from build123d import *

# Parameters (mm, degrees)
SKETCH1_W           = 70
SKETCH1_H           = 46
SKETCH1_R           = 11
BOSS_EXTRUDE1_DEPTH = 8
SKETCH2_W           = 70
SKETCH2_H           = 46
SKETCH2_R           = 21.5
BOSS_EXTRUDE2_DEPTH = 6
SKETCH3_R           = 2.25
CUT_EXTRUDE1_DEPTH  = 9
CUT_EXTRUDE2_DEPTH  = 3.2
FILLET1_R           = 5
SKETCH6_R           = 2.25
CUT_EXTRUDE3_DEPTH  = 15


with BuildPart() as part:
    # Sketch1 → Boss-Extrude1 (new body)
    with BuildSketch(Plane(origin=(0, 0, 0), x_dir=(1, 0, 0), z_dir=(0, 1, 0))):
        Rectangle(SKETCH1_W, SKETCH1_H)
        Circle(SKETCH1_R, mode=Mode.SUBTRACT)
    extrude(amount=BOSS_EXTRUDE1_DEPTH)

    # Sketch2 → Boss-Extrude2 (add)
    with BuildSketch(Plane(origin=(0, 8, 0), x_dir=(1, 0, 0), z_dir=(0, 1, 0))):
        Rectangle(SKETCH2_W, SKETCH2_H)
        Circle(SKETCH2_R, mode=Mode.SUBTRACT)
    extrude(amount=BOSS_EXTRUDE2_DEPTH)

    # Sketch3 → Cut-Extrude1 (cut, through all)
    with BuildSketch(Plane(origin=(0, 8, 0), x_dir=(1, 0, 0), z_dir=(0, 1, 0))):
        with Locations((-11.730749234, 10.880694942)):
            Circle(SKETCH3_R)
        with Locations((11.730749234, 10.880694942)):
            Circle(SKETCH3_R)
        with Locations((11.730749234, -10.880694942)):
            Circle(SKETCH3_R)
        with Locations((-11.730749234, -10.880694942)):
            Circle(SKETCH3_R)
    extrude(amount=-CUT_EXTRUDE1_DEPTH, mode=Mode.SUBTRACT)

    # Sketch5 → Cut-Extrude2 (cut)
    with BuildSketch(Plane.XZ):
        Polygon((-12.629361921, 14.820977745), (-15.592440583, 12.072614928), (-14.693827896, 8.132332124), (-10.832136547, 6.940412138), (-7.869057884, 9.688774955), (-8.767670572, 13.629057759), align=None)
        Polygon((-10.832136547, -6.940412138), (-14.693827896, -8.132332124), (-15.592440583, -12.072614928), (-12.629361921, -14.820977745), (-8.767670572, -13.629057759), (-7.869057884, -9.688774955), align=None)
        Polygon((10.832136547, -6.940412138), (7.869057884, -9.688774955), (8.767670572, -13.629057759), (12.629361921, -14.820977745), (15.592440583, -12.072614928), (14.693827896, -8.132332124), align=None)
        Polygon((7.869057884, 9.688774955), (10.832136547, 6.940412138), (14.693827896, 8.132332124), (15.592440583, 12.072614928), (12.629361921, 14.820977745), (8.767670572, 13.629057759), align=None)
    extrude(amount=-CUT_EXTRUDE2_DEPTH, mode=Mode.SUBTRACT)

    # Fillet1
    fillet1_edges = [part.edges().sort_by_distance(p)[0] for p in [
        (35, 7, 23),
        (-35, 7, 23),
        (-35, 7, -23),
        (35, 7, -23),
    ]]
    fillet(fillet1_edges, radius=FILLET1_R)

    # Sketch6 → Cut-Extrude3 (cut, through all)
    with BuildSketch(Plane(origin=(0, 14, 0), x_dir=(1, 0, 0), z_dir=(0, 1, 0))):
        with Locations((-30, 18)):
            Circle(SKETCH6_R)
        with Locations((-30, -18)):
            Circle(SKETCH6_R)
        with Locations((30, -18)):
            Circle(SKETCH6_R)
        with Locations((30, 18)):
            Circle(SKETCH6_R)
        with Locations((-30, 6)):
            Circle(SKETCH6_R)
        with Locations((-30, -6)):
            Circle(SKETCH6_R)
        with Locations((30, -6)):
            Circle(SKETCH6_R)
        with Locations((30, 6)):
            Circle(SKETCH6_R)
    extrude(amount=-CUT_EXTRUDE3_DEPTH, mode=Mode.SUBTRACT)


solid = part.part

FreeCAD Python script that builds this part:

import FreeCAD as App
import Part
import Sketcher

V = App.Vector
Q = App.Units.Quantity


def edges_at(feature, points):
    """Names of the edges that pass closest to the given points."""
    edges = feature.Shape.Edges
    near = lambda p: min(range(len(edges)), key=lambda i: edges[i].distToShape(Part.Vertex(*p))[0])
    return sorted({f"Edge{near(p) + 1}" for p in points})

doc = App.newDocument("Part")
body = doc.addObject("PartDesign::Body", "Body")

sketch1 = doc.addObject("Sketcher::SketchObject", "Sketch")
body.addObject(sketch1)
sketch1.AttachmentSupport = (doc.XZ_Plane, [""])
sketch1.MapMode = "FlatFace"
sketch1.addGeometry(Part.LineSegment(V(-35, -23, 0), V(-35, 23, 0)), False)
sketch1.addGeometry(Part.LineSegment(V(-35, 23, 0), V(35, 23, 0)), False)
sketch1.addGeometry(Part.LineSegment(V(35, 23, 0), V(35, -23, 0)), False)
sketch1.addGeometry(Part.LineSegment(V(35, -23, 0), V(-35, -23, 0)), False)
sketch1.addGeometry(Part.Circle(V(0, 0, 0), V(0, 0, 1), 11), False)
sketch1.addConstraint(Sketcher.Constraint("Coincident", 0, 2, 1, 1))
sketch1.addConstraint(Sketcher.Constraint("Coincident", 1, 2, 2, 1))
sketch1.addConstraint(Sketcher.Constraint("Coincident", 2, 2, 3, 1))
sketch1.addConstraint(Sketcher.Constraint("Coincident", 3, 2, 0, 1))
sketch1.addConstraint(Sketcher.Constraint("Vertical", 0))
sketch1.addConstraint(Sketcher.Constraint("Horizontal", 1))
sketch1.addConstraint(Sketcher.Constraint("Vertical", 2))
sketch1.addConstraint(Sketcher.Constraint("Horizontal", 3))
sketch1.addConstraint(Sketcher.Constraint("Coincident", 4, 3, -1, 1))
sketch1.addConstraint(Sketcher.Constraint("Symmetric", 0, 2, 2, 2, -1, 1))
sketch1.addConstraint(Sketcher.Constraint("Diameter", 4, Q("22 mm")))
sketch1.addConstraint(Sketcher.Constraint("DistanceX", 1, 1, 1, 2, Q("70 mm")))
sketch1.addConstraint(Sketcher.Constraint("DistanceY", 0, 1, 0, 2, Q("46 mm")))
pad1 = doc.addObject("PartDesign::Pad", "Pad")
body.addObject(pad1)
pad1.Profile = sketch1
pad1.Length = 8
pad1.Reversed = True

sketch2 = doc.addObject("Sketcher::SketchObject", "Sketch001")
body.addObject(sketch2)
sketch2.AttachmentSupport = (doc.XZ_Plane, [""])
sketch2.MapMode = "FlatFace"
sketch2.AttachmentOffset = App.Placement(V(0, 0, -8), App.Rotation())
sketch2.addGeometry(Part.LineSegment(V(-35, -23, 0), V(-35, 23, 0)), False)
sketch2.addGeometry(Part.LineSegment(V(-35, 23, 0), V(35, 23, 0)), False)
sketch2.addGeometry(Part.LineSegment(V(35, 23, 0), V(35, -23, 0)), False)
sketch2.addGeometry(Part.LineSegment(V(35, -23, 0), V(-35, -23, 0)), False)
sketch2.addGeometry(Part.Circle(V(0, 0, 0), V(0, 0, 1), 21.5), False)
sketch2.addConstraint(Sketcher.Constraint("Coincident", 0, 2, 1, 1))
sketch2.addConstraint(Sketcher.Constraint("Coincident", 1, 2, 2, 1))
sketch2.addConstraint(Sketcher.Constraint("Coincident", 2, 2, 3, 1))
sketch2.addConstraint(Sketcher.Constraint("Coincident", 3, 2, 0, 1))
sketch2.addConstraint(Sketcher.Constraint("Vertical", 0))
sketch2.addConstraint(Sketcher.Constraint("Horizontal", 1))
sketch2.addConstraint(Sketcher.Constraint("Vertical", 2))
sketch2.addConstraint(Sketcher.Constraint("Horizontal", 3))
sketch2.addConstraint(Sketcher.Constraint("Coincident", 4, 3, -1, 1))
sketch2.addConstraint(Sketcher.Constraint("Symmetric", 0, 2, 2, 2, -1, 1))
sketch2.addConstraint(Sketcher.Constraint("Diameter", 4, Q("43 mm")))
sketch2.addConstraint(Sketcher.Constraint("DistanceX", 1, 1, 1, 2, Q("70 mm")))
sketch2.addConstraint(Sketcher.Constraint("DistanceY", 0, 1, 0, 2, Q("46 mm")))
pad2 = doc.addObject("PartDesign::Pad", "Pad001")
body.addObject(pad2)
pad2.Profile = sketch2
pad2.Length = 6
pad2.Reversed = True

sketch3 = doc.addObject("Sketcher::SketchObject", "Sketch002")
body.addObject(sketch3)
sketch3.AttachmentSupport = (doc.XZ_Plane, [""])
sketch3.MapMode = "FlatFace"
sketch3.AttachmentOffset = App.Placement(V(0, 0, -8), App.Rotation())
sketch3.addGeometry(Part.Circle(V(-11.730749, -10.880695, 0), V(0, 0, 1), 2.25), False)
sketch3.addGeometry(Part.Circle(V(11.730749, -10.880695, 0), V(0, 0, 1), 2.25), False)
sketch3.addGeometry(Part.Circle(V(11.730749, 10.880695, 0), V(0, 0, 1), 2.25), False)
sketch3.addGeometry(Part.Circle(V(-11.730749, 10.880695, 0), V(0, 0, 1), 2.25), False)
sketch3.addConstraint(Sketcher.Constraint("Equal", 0, 1))
sketch3.addConstraint(Sketcher.Constraint("Equal", 1, 2))
sketch3.addConstraint(Sketcher.Constraint("Equal", 2, 3))
sketch3.addConstraint(Sketcher.Constraint("Symmetric", 0, 3, 2, 3, -1, 1))
sketch3.addConstraint(Sketcher.Constraint("Symmetric", 1, 3, 3, 3, -1, 1))
sketch3.addConstraint(Sketcher.Constraint("Symmetric", 0, 3, 1, 3, -2))
sketch3.addConstraint(Sketcher.Constraint("Diameter", 0, Q("4.5 mm")))
sketch3.addConstraint(Sketcher.Constraint("DistanceX", 0, 3, 1, 3, Q("23.461498 mm")))
sketch3.addConstraint(Sketcher.Constraint("DistanceY", 1, 3, 2, 3, Q("21.76139 mm")))
pocket1 = doc.addObject("PartDesign::Pocket", "Pocket")
body.addObject(pocket1)
pocket1.Profile = sketch3
pocket1.Type = "ThroughAll"
pocket1.Reversed = True

sketch4 = doc.addObject("Sketcher::SketchObject", "Sketch003")
body.addObject(sketch4)
sketch4.AttachmentSupport = (doc.XZ_Plane, [""])
sketch4.MapMode = "FlatFace"
sketch4.addGeometry(Part.LineSegment(V(-12.629362, 14.820978, 0), V(-15.592441, 12.072615, 0)), False)
sketch4.addGeometry(Part.LineSegment(V(-15.592441, 12.072615, 0), V(-14.693828, 8.132332, 0)), False)
sketch4.addGeometry(Part.LineSegment(V(-14.693828, 8.132332, 0), V(-10.832137, 6.940412, 0)), False)
sketch4.addGeometry(Part.LineSegment(V(-10.832137, 6.940412, 0), V(-7.869058, 9.688775, 0)), False)
sketch4.addGeometry(Part.LineSegment(V(-7.869058, 9.688775, 0), V(-8.767671, 13.629058, 0)), False)
sketch4.addGeometry(Part.LineSegment(V(-8.767671, 13.629058, 0), V(-12.629362, 14.820978, 0)), False)
sketch4.addGeometry(Part.LineSegment(V(-10.832137, -6.940412, 0), V(-14.693828, -8.132332, 0)), False)
sketch4.addGeometry(Part.LineSegment(V(-14.693828, -8.132332, 0), V(-15.592441, -12.072615, 0)), False)
sketch4.addGeometry(Part.LineSegment(V(-15.592441, -12.072615, 0), V(-12.629362, -14.820978, 0)), False)
sketch4.addGeometry(Part.LineSegment(V(-12.629362, -14.820978, 0), V(-8.767671, -13.629058, 0)), False)
sketch4.addGeometry(Part.LineSegment(V(-8.767671, -13.629058, 0), V(-7.869058, -9.688775, 0)), False)
sketch4.addGeometry(Part.LineSegment(V(-7.869058, -9.688775, 0), V(-10.832137, -6.940412, 0)), False)
sketch4.addGeometry(Part.LineSegment(V(10.832137, -6.940412, 0), V(7.869058, -9.688775, 0)), False)
sketch4.addGeometry(Part.LineSegment(V(7.869058, -9.688775, 0), V(8.767671, -13.629058, 0)), False)
sketch4.addGeometry(Part.LineSegment(V(8.767671, -13.629058, 0), V(12.629362, -14.820978, 0)), False)
sketch4.addGeometry(Part.LineSegment(V(12.629362, -14.820978, 0), V(15.592441, -12.072615, 0)), False)
sketch4.addGeometry(Part.LineSegment(V(15.592441, -12.072615, 0), V(14.693828, -8.132332, 0)), False)
sketch4.addGeometry(Part.LineSegment(V(14.693828, -8.132332, 0), V(10.832137, -6.940412, 0)), False)
sketch4.addGeometry(Part.LineSegment(V(7.869058, 9.688775, 0), V(10.832137, 6.940412, 0)), False)
sketch4.addGeometry(Part.LineSegment(V(10.832137, 6.940412, 0), V(14.693828, 8.132332, 0)), False)
sketch4.addGeometry(Part.LineSegment(V(14.693828, 8.132332, 0), V(15.592441, 12.072615, 0)), False)
sketch4.addGeometry(Part.LineSegment(V(15.592441, 12.072615, 0), V(12.629362, 14.820978, 0)), False)
sketch4.addGeometry(Part.LineSegment(V(12.629362, 14.820978, 0), V(8.767671, 13.629058, 0)), False)
sketch4.addGeometry(Part.LineSegment(V(8.767671, 13.629058, 0), V(7.869058, 9.688775, 0)), False)
sketch4.addConstraint(Sketcher.Constraint("Coincident", 0, 2, 1, 1))
sketch4.addConstraint(Sketcher.Constraint("Coincident", 1, 2, 2, 1))
sketch4.addConstraint(Sketcher.Constraint("Coincident", 2, 2, 3, 1))
sketch4.addConstraint(Sketcher.Constraint("Coincident", 3, 2, 4, 1))
sketch4.addConstraint(Sketcher.Constraint("Coincident", 4, 2, 5, 1))
sketch4.addConstraint(Sketcher.Constraint("Coincident", 5, 2, 0, 1))
sketch4.addConstraint(Sketcher.Constraint("Coincident", 6, 2, 7, 1))
sketch4.addConstraint(Sketcher.Constraint("Coincident", 7, 2, 8, 1))
sketch4.addConstraint(Sketcher.Constraint("Coincident", 8, 2, 9, 1))
sketch4.addConstraint(Sketcher.Constraint("Coincident", 9, 2, 10, 1))
sketch4.addConstraint(Sketcher.Constraint("Coincident", 10, 2, 11, 1))
sketch4.addConstraint(Sketcher.Constraint("Coincident", 11, 2, 6, 1))
sketch4.addConstraint(Sketcher.Constraint("Coincident", 12, 2, 13, 1))
sketch4.addConstraint(Sketcher.Constraint("Coincident", 13, 2, 14, 1))
sketch4.addConstraint(Sketcher.Constraint("Coincident", 14, 2, 15, 1))
sketch4.addConstraint(Sketcher.Constraint("Coincident", 15, 2, 16, 1))
sketch4.addConstraint(Sketcher.Constraint("Coincident", 16, 2, 17, 1))
sketch4.addConstraint(Sketcher.Constraint("Coincident", 17, 2, 12, 1))
sketch4.addConstraint(Sketcher.Constraint("Coincident", 18, 2, 19, 1))
sketch4.addConstraint(Sketcher.Constraint("Coincident", 19, 2, 20, 1))
sketch4.addConstraint(Sketcher.Constraint("Coincident", 20, 2, 21, 1))
sketch4.addConstraint(Sketcher.Constraint("Coincident", 21, 2, 22, 1))
sketch4.addConstraint(Sketcher.Constraint("Coincident", 22, 2, 23, 1))
sketch4.addConstraint(Sketcher.Constraint("Coincident", 23, 2, 18, 1))
sketch4.addConstraint(Sketcher.Constraint("Symmetric", 3, 2, 12, 2, -1, 1))
sketch4.addConstraint(Sketcher.Constraint("Symmetric", 4, 2, 13, 2, -1, 1))
sketch4.addConstraint(Sketcher.Constraint("Symmetric", 5, 2, 14, 2, -1, 1))
sketch4.addConstraint(Sketcher.Constraint("Symmetric", 0, 2, 15, 2, -1, 1))
sketch4.addConstraint(Sketcher.Constraint("Symmetric", 1, 2, 16, 2, -1, 1))
sketch4.addConstraint(Sketcher.Constraint("Symmetric", 2, 2, 17, 2, -1, 1))
sketch4.addConstraint(Sketcher.Constraint("Symmetric", 11, 2, 18, 2, -1, 1))
sketch4.addConstraint(Sketcher.Constraint("Symmetric", 6, 2, 19, 2, -1, 1))
sketch4.addConstraint(Sketcher.Constraint("Symmetric", 7, 2, 20, 2, -1, 1))
sketch4.addConstraint(Sketcher.Constraint("Symmetric", 8, 2, 21, 2, -1, 1))
sketch4.addConstraint(Sketcher.Constraint("Symmetric", 9, 2, 22, 2, -1, 1))
sketch4.addConstraint(Sketcher.Constraint("Symmetric", 10, 2, 23, 2, -1, 1))
sketch4.addConstraint(Sketcher.Constraint("Symmetric", 10, 2, 12, 2, -2))
sketch4.addConstraint(Sketcher.Constraint("Symmetric", 9, 2, 13, 2, -2))
sketch4.addConstraint(Sketcher.Constraint("Symmetric", 8, 2, 14, 2, -2))
sketch4.addConstraint(Sketcher.Constraint("Symmetric", 7, 2, 15, 2, -2))
sketch4.addConstraint(Sketcher.Constraint("Symmetric", 6, 2, 16, 2, -2))
sketch4.addConstraint(Sketcher.Constraint("Symmetric", 11, 2, 17, 2, -2))
sketch4.addConstraint(Sketcher.Constraint("Parallel", 0, 3))
sketch4.addConstraint(Sketcher.Constraint("Parallel", 1, 4))
sketch4.addConstraint(Sketcher.Constraint("Parallel", 2, 5))
sketch4.addConstraint(Sketcher.Constraint("Equal", 0, 1))
sketch4.addConstraint(Sketcher.Constraint("Equal", 1, 2))
sketch4.addConstraint(Sketcher.Constraint("Equal", 2, 3))
sketch4.addConstraint(Sketcher.Constraint("DistanceX", 11, 2, 14, 2, Q("23.461498 mm")))
sketch4.addConstraint(Sketcher.Constraint("Distance", 0, Q("4.041452 mm")))
sketch4.addConstraint(Sketcher.Constraint("DistanceX", 0, 2, -1, 1, Q("15.592441 mm")))
sketch4.addConstraint(Sketcher.Constraint("DistanceX", 4, 2, -1, 1, Q("8.767671 mm")))
sketch4.addConstraint(Sketcher.Constraint("DistanceX", 5, 2, -1, 1, Q("12.629362 mm")))
sketch4.addConstraint(Sketcher.Constraint("DistanceY", 6, 2, 4, 2, Q("21.76139 mm")))
pocket2 = doc.addObject("PartDesign::Pocket", "Pocket001")
body.addObject(pocket2)
pocket2.Profile = sketch4
pocket2.Length = 3.2
doc.recompute()

fillet = doc.addObject("PartDesign::Fillet", "Fillet")
body.addObject(fillet)
fillet.Base = (pocket2, edges_at(pocket2, [
    (35, 7, 23),
    (-35, 7, 23),
    (-35, 7, -23),
    (35, 7, -23),
]))
fillet.Radius = 5

sketch5 = doc.addObject("Sketcher::SketchObject", "Sketch004")
body.addObject(sketch5)
sketch5.AttachmentSupport = (doc.XZ_Plane, [""])
sketch5.MapMode = "FlatFace"
sketch5.AttachmentOffset = App.Placement(V(0, 0, -14), App.Rotation())
sketch5.addGeometry(Part.Circle(V(-30, -18, 0), V(0, 0, 1), 2.25), False)
sketch5.addGeometry(Part.Circle(V(-30, 18, 0), V(0, 0, 1), 2.25), False)
sketch5.addGeometry(Part.Circle(V(30, 18, 0), V(0, 0, 1), 2.25), False)
sketch5.addGeometry(Part.Circle(V(30, -18, 0), V(0, 0, 1), 2.25), False)
sketch5.addGeometry(Part.Circle(V(-30, -6, 0), V(0, 0, 1), 2.25), False)
sketch5.addGeometry(Part.Circle(V(-30, 6, 0), V(0, 0, 1), 2.25), False)
sketch5.addGeometry(Part.Circle(V(30, 6, 0), V(0, 0, 1), 2.25), False)
sketch5.addGeometry(Part.Circle(V(30, -6, 0), V(0, 0, 1), 2.25), False)
sketch5.addConstraint(Sketcher.Constraint("Equal", 0, 1))
sketch5.addConstraint(Sketcher.Constraint("Equal", 1, 2))
sketch5.addConstraint(Sketcher.Constraint("Equal", 2, 3))
sketch5.addConstraint(Sketcher.Constraint("Equal", 3, 4))
sketch5.addConstraint(Sketcher.Constraint("Equal", 4, 5))
sketch5.addConstraint(Sketcher.Constraint("Equal", 5, 6))
sketch5.addConstraint(Sketcher.Constraint("Equal", 6, 7))
sketch5.addConstraint(Sketcher.Constraint("Symmetric", 0, 3, 2, 3, -1, 1))
sketch5.addConstraint(Sketcher.Constraint("Symmetric", 1, 3, 3, 3, -1, 1))
sketch5.addConstraint(Sketcher.Constraint("Symmetric", 4, 3, 6, 3, -1, 1))
sketch5.addConstraint(Sketcher.Constraint("Symmetric", 5, 3, 7, 3, -1, 1))
sketch5.addConstraint(Sketcher.Constraint("Symmetric", 1, 3, 2, 3, -2))
sketch5.addConstraint(Sketcher.Constraint("Symmetric", 5, 3, 6, 3, -2))
sketch5.addConstraint(Sketcher.Constraint("Vertical", 1, 3, 4, 3))
sketch5.addConstraint(Sketcher.Constraint("Diameter", 0, Q("4.5 mm")))
sketch5.addConstraint(Sketcher.Constraint("DistanceX", 0, 3, -1, 1, Q("30 mm")))
sketch5.addConstraint(Sketcher.Constraint("DistanceY", 0, 3, -1, 1, Q("18 mm")))
sketch5.addConstraint(Sketcher.Constraint("DistanceY", 4, 3, -1, 1, Q("6 mm")))
pocket3 = doc.addObject("PartDesign::Pocket", "Pocket002")
body.addObject(pocket3)
pocket3.Profile = sketch5
pocket3.Type = "ThroughAll"
pocket3.Reversed = True

doc.recompute()
